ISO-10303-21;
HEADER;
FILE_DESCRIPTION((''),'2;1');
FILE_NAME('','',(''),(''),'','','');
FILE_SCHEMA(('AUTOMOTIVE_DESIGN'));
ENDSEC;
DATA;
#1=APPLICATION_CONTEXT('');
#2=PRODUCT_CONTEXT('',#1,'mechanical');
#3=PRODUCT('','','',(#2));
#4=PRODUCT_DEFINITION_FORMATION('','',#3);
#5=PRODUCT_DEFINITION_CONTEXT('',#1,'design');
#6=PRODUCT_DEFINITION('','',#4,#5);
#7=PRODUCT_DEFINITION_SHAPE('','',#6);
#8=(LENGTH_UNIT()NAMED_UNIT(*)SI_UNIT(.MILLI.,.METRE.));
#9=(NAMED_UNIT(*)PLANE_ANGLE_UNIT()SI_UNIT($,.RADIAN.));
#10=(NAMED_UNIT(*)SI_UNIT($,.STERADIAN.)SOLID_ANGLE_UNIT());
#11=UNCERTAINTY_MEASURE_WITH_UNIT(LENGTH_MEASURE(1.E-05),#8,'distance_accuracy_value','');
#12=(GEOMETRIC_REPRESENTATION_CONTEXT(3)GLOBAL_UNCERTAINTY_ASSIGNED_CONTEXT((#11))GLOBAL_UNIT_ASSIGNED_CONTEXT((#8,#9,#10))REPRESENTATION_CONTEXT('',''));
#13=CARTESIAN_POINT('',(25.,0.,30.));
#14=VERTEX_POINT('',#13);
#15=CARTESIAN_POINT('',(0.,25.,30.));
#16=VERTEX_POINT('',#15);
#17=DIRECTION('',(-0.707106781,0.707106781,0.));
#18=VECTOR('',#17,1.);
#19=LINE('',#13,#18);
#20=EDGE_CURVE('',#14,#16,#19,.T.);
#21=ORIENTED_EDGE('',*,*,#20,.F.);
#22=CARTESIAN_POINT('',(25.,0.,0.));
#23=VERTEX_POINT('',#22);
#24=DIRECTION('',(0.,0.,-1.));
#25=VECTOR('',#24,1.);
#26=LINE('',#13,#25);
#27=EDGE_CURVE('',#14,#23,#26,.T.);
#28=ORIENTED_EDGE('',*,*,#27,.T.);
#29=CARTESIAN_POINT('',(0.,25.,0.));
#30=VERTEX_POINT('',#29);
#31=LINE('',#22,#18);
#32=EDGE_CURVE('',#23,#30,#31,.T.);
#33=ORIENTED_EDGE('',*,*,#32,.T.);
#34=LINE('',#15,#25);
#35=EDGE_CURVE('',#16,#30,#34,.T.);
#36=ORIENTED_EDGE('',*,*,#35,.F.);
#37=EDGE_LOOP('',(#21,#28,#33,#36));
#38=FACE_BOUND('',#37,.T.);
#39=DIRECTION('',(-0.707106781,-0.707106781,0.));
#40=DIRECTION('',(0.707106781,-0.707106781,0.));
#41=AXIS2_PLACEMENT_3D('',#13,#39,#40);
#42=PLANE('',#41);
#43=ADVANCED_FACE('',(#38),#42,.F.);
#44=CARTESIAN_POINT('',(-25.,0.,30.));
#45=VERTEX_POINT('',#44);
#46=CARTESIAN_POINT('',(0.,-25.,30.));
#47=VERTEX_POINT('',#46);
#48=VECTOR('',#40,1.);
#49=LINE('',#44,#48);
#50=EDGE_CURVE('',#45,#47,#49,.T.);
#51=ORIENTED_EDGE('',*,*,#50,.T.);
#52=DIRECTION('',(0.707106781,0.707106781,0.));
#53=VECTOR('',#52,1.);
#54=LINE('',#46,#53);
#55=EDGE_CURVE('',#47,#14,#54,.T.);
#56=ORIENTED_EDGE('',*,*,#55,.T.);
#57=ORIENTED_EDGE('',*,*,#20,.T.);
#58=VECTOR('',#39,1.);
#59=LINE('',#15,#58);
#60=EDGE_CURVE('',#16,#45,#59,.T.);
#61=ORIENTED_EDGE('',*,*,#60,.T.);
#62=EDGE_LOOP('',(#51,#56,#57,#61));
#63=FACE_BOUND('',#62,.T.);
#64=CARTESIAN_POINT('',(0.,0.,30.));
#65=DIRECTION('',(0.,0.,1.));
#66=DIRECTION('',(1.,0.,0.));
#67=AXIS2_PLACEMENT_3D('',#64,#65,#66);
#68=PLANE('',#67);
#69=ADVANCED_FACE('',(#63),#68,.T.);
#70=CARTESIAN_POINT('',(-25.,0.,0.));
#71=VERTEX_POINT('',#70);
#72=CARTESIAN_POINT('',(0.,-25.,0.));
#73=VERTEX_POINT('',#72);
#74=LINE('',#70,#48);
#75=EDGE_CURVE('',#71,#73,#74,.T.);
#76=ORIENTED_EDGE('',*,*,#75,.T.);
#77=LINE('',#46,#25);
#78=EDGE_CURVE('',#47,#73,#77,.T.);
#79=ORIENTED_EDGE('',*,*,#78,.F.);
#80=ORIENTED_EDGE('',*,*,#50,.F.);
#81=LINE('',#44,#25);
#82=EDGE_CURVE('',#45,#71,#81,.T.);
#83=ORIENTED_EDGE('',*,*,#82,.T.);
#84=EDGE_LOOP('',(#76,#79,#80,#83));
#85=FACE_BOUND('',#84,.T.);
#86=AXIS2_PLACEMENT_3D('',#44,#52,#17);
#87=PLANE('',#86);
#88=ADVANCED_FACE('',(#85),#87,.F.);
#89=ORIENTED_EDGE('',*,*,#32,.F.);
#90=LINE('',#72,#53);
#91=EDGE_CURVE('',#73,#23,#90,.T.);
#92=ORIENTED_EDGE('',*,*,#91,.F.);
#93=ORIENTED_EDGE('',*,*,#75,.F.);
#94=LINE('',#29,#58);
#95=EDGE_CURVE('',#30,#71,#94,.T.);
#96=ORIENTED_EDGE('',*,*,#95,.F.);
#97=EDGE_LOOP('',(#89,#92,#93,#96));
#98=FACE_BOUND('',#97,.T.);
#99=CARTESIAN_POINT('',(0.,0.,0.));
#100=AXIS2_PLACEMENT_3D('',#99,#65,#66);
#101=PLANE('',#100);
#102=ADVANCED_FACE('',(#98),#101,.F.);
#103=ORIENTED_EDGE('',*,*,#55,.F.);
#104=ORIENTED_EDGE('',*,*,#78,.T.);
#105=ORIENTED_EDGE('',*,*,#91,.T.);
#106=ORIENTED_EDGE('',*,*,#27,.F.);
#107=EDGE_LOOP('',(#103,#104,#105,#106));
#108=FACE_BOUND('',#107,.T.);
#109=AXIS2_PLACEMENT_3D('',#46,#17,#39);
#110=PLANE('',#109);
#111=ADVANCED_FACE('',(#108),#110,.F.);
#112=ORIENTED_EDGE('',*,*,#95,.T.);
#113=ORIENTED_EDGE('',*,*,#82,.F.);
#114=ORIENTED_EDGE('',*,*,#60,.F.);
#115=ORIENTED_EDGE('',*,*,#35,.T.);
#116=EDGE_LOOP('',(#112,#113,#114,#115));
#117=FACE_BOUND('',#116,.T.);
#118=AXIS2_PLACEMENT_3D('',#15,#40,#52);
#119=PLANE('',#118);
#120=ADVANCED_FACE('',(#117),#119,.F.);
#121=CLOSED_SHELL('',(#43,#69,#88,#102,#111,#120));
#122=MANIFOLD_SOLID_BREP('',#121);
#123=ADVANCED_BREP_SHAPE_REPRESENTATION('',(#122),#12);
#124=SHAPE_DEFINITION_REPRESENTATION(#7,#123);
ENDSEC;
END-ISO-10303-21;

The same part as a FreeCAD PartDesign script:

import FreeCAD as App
import Part
import Sketcher

doc = App.newDocument("Part")
body = doc.addObject("PartDesign::Body", "Body")

# Sketch on XY plane
sketch1 = body.newObject("Sketcher::SketchObject", "Sketch")
sketch1.AttachmentSupport = (doc.getObject("XY_Plane"), [""])
sketch1.MapMode = "FlatFace"
sketch1.addGeometry([
    Part.LineSegment(App.Vector(25, 0, 0), App.Vector(0, 25, 0)),
    Part.LineSegment(App.Vector(0, 25, 0), App.Vector(-25, 0, 0)),
    Part.LineSegment(App.Vector(-25, 0, 0), App.Vector(0, -25, 0)),
    Part.LineSegment(App.Vector(0, -25, 0), App.Vector(25, 0, 0)),
], False)
sketch1.addConstraint([
    Sketcher.Constraint("Coincident", 0, 2, 1, 1),
    Sketcher.Constraint("Coincident", 1, 2, 2, 1),
    Sketcher.Constraint("Coincident", 2, 2, 3, 1),
    Sketcher.Constraint("Coincident", 3, 2, 0, 1),
    Sketcher.Constraint("Symmetric", 0, 2, 2, 2, -1, 1),
    Sketcher.Constraint("Symmetric", 1, 2, 3, 2, -1, 1),
    Sketcher.Constraint("PointOnObject", 0, 2, -2),
    Sketcher.Constraint("PointOnObject", 1, 2, -1),
    Sketcher.Constraint("Perpendicular", 0, 1),
    Sketcher.Constraint("DistanceY", -1, 1, 0, 2, 25.0),
])
pad1 = body.newObject("PartDesign::Pad", "Pad")
pad1.Profile = sketch1
pad1.Length = 30

doc.recompute()
